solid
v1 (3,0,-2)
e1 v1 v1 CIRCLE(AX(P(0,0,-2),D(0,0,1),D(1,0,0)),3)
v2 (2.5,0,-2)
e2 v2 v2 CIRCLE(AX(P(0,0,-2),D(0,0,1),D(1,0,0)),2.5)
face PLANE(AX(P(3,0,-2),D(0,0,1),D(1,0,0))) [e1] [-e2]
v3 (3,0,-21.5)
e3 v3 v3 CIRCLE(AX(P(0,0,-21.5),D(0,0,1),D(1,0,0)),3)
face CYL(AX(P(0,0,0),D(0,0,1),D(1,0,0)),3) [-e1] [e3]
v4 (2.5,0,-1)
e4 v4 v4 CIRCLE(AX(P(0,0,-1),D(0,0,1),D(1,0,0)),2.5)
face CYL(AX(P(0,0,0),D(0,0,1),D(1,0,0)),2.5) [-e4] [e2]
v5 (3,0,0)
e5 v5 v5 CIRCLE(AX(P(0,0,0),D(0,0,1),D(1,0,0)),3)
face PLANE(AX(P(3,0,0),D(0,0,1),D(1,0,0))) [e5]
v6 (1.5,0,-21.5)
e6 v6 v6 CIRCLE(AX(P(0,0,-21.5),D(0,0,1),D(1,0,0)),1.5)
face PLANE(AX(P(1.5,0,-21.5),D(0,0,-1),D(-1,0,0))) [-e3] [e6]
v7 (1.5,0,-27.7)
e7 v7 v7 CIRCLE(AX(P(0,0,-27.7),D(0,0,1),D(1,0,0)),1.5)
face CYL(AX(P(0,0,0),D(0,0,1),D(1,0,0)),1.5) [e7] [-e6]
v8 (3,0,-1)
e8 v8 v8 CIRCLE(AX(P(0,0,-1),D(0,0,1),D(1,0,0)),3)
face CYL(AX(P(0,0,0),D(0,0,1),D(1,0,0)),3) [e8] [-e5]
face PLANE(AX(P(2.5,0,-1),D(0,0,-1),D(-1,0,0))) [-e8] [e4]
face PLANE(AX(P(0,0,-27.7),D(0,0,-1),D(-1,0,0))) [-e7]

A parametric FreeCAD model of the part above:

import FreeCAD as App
import Part
import Sketcher

V = App.Vector

doc = App.newDocument("Part")
body = doc.addObject("PartDesign::Body", "Body")

sketch1 = body.newObject("Sketcher::SketchObject", "Sketch")
sketch1.AttachmentSupport = (doc.getObject("XZ_Plane"), [""])
sketch1.MapMode = "FlatFace"
sketch1.addGeometry([
    Part.LineSegment(V(0, -27.7, 0), V(0, 0, 0)),
    Part.LineSegment(V(0, 0, 0), V(3, 0, 0)),
    Part.LineSegment(V(3, 0, 0), V(3, -1, 0)),
    Part.LineSegment(V(3, -1, 0), V(2.5, -1, 0)),
    Part.LineSegment(V(2.5, -1, 0), V(2.5, -2, 0)),
    Part.LineSegment(V(2.5, -2, 0), V(3, -2, 0)),
    Part.LineSegment(V(3, -2, 0), V(3, -21.5, 0)),
    Part.LineSegment(V(3, -21.5, 0), V(1.5, -21.5, 0)),
    Part.LineSegment(V(1.5, -21.5, 0), V(1.5, -27.7, 0)),
    Part.LineSegment(V(1.5, -27.7, 0), V(0, -27.7, 0)),
], False)
sketch1.addConstraint([
    Sketcher.Constraint("Coincident", 0, 2, 1, 1),
    Sketcher.Constraint("Coincident", 1, 2, 2, 1),
    Sketcher.Constraint("Coincident", 2, 2, 3, 1),
    Sketcher.Constraint("Coincident", 3, 2, 4, 1),
    Sketcher.Constraint("Coincident", 4, 2, 5, 1),
    Sketcher.Constraint("Coincident", 5, 2, 6, 1),
    Sketcher.Constraint("Coincident", 6, 2, 7, 1),
    Sketcher.Constraint("Coincident", 7, 2, 8, 1),
    Sketcher.Constraint("Coincident", 8, 2, 9, 1),
    Sketcher.Constraint("Coincident", 9, 2, 0, 1),
    Sketcher.Constraint("Vertical", 0),
    Sketcher.Constraint("Horizontal", 1),
    Sketcher.Constraint("Vertical", 2),
    Sketcher.Constraint("Horizontal", 3),
    Sketcher.Constraint("Vertical", 4),
    Sketcher.Constraint("Horizontal", 5),
    Sketcher.Constraint("Vertical", 6),
    Sketcher.Constraint("Horizontal", 7),
    Sketcher.Constraint("Vertical", 8),
    Sketcher.Constraint("Horizontal", 9),
    Sketcher.Constraint("Coincident", 0, 2, -1, 1),
    Sketcher.Constraint("Vertical", 2, 2, 5, 2),
    Sketcher.Constraint("Equal", 7, 9),
    Sketcher.Constraint("Equal", 2, 4),
    Sketcher.Constraint("DistanceX", 1, 1, 1, 2, 3.0),
    Sketcher.Constraint("DistanceY", 2, 2, 2, 1, 1.0),
    Sketcher.Constraint("DistanceX", 3, 2, 3, 1, 0.5),
    Sketcher.Constraint("DistanceY", 0, 1, 0, 2, 27.7),
    Sketcher.Constraint("DistanceY", 6, 2, 6, 1, 19.5),
])
revolution = body.newObject("PartDesign::Revolution", "Revolution")
revolution.Profile = sketch1
revolution.ReferenceAxis = (sketch1, ["V_Axis"])
revolution.Angle = 360

doc.recompute()
